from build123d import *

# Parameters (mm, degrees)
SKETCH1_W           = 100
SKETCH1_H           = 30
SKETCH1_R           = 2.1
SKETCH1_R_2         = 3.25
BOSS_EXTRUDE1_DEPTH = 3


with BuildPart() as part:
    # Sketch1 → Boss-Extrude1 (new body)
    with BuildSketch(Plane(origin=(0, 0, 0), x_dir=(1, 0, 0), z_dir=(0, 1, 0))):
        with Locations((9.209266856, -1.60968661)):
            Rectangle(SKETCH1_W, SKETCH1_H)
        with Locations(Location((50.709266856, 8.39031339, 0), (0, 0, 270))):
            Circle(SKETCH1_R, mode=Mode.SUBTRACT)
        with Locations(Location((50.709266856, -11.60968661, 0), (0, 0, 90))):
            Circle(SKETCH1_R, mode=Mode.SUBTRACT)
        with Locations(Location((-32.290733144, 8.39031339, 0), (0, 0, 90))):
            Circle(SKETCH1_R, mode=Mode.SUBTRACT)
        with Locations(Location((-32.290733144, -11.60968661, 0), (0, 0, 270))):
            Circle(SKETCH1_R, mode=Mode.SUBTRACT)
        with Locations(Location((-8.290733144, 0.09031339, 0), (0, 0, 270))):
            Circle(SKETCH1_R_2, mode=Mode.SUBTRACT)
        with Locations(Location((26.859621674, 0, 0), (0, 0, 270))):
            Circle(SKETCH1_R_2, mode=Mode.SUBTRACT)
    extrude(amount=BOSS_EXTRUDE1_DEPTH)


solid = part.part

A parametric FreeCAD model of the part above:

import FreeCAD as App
import Part
import Sketcher
Q = App.Units.Quantity


def add_polygon(sketch, points):
    """Adds a closed chain of lines whose ends are joined by coincident constraints."""
    first, n = sketch.GeometryCount, len(points)
    for a, b in zip(points, points[1:] + points[:1]):
        sketch.addGeometry(Part.LineSegment(App.Vector(*a, 0), App.Vector(*b, 0)), False)
    for i in range(n):
        sketch.addConstraint(Sketcher.Constraint("Coincident", first + i, 2, first + (i + 1) % n, 1))

doc = App.newDocument("Part")
body = doc.addObject("PartDesign::Body", "Body")

# Sketch on XZ plane
sketch1 = doc.addObject("Sketcher::SketchObject", "Sketch")
body.addObject(sketch1)
sketch1.AttachmentSupport = (doc.XZ_Plane, [""])
sketch1.MapMode = "FlatFace"
add_polygon(sketch1, [(-40.790733, -13.390313), (-40.790733, 16.609687), (59.209267, 16.609687), (59.209267, -13.390313)])  # lines 0-3
sketch1.addGeometry(Part.Circle(App.Vector(-32.290733, 11.609687, 0), App.Vector(0, 0, 1), 2.1), False)  # 4
sketch1.addGeometry(Part.Circle(App.Vector(50.709267, 11.609687, 0), App.Vector(0, 0, 1), 2.1), False)  # 5
sketch1.addGeometry(Part.Circle(App.Vector(-8.290733, -0.090313, 0), App.Vector(0, 0, 1), 3.25), False)  # 6
sketch1.addGeometry(Part.Circle(App.Vector(-32.290733, -8.390313, 0), App.Vector(0, 0, 1), 2.1), False)  # 7
sketch1.addGeometry(Part.Circle(App.Vector(26.859622, 0, 0), App.Vector(0, 0, 1), 3.25), False)  # 8
sketch1.addGeometry(Part.Circle(App.Vector(50.709267, -8.390313, 0), App.Vector(0, 0, 1), 2.1), False)  # 9
sketch1.addConstraint([
    Sketcher.Constraint("Vertical", 0),
    Sketcher.Constraint("Horizontal", 1),
    Sketcher.Constraint("Vertical", 2),
    Sketcher.Constraint("Horizontal", 3),
    Sketcher.Constraint("Equal", 4, 5),
    Sketcher.Constraint("Equal", 5, 7),
    Sketcher.Constraint("Equal", 6, 8),
    Sketcher.Constraint("Equal", 7, 9),
    Sketcher.Constraint("PointOnObject", 8, 3, -1),
    Sketcher.Constraint("Horizontal", 4, 3, 5, 3),
    Sketcher.Constraint("Horizontal", 7, 3, 9, 3),
    Sketcher.Constraint("Vertical", 4, 3, 7, 3),
    Sketcher.Constraint("Vertical", 5, 3, 9, 3),
    Sketcher.Constraint("Diameter", 4, Q("4.2 mm")),
    Sketcher.Constraint("Diameter", 6, Q("6.5 mm")),
    Sketcher.Constraint("DistanceX", 1, 1, 1, 2, Q("100 mm")),
    Sketcher.Constraint("DistanceY", 0, 1, 0, 2, Q("30 mm")),
    Sketcher.Constraint("DistanceX", 4, 3, 5, 3, Q("83 mm")),
    Sketcher.Constraint("DistanceX", 4, 3, 6, 3, Q("24 mm")),
    Sketcher.Constraint("DistanceY", 7, 3, 4, 3, Q("20 mm")),
    Sketcher.Constraint("DistanceY", 4, 3, 0, 2, Q("5 mm")),
    Sketcher.Constraint("DistanceY", 6, 3, 4, 3, Q("11.7 mm")),
    Sketcher.Constraint("DistanceX", 0, 2, 4, 3, Q("8.5 mm")),
    Sketcher.Constraint("DistanceX", -1, 1, 8, 3, Q("26.859622 mm")),
    Sketcher.Constraint("DistanceX", 4, 3, -1, 1, Q("32.290733 mm")),
    Sketcher.Constraint("DistanceY", -1, 1, 4, 3, Q("11.609687 mm")),
])
pad1 = doc.addObject("PartDesign::Pad", "Pad")
body.addObject(pad1)
pad1.Profile = sketch1
pad1.Length = 3
pad1.Reversed = True

doc.recompute()
